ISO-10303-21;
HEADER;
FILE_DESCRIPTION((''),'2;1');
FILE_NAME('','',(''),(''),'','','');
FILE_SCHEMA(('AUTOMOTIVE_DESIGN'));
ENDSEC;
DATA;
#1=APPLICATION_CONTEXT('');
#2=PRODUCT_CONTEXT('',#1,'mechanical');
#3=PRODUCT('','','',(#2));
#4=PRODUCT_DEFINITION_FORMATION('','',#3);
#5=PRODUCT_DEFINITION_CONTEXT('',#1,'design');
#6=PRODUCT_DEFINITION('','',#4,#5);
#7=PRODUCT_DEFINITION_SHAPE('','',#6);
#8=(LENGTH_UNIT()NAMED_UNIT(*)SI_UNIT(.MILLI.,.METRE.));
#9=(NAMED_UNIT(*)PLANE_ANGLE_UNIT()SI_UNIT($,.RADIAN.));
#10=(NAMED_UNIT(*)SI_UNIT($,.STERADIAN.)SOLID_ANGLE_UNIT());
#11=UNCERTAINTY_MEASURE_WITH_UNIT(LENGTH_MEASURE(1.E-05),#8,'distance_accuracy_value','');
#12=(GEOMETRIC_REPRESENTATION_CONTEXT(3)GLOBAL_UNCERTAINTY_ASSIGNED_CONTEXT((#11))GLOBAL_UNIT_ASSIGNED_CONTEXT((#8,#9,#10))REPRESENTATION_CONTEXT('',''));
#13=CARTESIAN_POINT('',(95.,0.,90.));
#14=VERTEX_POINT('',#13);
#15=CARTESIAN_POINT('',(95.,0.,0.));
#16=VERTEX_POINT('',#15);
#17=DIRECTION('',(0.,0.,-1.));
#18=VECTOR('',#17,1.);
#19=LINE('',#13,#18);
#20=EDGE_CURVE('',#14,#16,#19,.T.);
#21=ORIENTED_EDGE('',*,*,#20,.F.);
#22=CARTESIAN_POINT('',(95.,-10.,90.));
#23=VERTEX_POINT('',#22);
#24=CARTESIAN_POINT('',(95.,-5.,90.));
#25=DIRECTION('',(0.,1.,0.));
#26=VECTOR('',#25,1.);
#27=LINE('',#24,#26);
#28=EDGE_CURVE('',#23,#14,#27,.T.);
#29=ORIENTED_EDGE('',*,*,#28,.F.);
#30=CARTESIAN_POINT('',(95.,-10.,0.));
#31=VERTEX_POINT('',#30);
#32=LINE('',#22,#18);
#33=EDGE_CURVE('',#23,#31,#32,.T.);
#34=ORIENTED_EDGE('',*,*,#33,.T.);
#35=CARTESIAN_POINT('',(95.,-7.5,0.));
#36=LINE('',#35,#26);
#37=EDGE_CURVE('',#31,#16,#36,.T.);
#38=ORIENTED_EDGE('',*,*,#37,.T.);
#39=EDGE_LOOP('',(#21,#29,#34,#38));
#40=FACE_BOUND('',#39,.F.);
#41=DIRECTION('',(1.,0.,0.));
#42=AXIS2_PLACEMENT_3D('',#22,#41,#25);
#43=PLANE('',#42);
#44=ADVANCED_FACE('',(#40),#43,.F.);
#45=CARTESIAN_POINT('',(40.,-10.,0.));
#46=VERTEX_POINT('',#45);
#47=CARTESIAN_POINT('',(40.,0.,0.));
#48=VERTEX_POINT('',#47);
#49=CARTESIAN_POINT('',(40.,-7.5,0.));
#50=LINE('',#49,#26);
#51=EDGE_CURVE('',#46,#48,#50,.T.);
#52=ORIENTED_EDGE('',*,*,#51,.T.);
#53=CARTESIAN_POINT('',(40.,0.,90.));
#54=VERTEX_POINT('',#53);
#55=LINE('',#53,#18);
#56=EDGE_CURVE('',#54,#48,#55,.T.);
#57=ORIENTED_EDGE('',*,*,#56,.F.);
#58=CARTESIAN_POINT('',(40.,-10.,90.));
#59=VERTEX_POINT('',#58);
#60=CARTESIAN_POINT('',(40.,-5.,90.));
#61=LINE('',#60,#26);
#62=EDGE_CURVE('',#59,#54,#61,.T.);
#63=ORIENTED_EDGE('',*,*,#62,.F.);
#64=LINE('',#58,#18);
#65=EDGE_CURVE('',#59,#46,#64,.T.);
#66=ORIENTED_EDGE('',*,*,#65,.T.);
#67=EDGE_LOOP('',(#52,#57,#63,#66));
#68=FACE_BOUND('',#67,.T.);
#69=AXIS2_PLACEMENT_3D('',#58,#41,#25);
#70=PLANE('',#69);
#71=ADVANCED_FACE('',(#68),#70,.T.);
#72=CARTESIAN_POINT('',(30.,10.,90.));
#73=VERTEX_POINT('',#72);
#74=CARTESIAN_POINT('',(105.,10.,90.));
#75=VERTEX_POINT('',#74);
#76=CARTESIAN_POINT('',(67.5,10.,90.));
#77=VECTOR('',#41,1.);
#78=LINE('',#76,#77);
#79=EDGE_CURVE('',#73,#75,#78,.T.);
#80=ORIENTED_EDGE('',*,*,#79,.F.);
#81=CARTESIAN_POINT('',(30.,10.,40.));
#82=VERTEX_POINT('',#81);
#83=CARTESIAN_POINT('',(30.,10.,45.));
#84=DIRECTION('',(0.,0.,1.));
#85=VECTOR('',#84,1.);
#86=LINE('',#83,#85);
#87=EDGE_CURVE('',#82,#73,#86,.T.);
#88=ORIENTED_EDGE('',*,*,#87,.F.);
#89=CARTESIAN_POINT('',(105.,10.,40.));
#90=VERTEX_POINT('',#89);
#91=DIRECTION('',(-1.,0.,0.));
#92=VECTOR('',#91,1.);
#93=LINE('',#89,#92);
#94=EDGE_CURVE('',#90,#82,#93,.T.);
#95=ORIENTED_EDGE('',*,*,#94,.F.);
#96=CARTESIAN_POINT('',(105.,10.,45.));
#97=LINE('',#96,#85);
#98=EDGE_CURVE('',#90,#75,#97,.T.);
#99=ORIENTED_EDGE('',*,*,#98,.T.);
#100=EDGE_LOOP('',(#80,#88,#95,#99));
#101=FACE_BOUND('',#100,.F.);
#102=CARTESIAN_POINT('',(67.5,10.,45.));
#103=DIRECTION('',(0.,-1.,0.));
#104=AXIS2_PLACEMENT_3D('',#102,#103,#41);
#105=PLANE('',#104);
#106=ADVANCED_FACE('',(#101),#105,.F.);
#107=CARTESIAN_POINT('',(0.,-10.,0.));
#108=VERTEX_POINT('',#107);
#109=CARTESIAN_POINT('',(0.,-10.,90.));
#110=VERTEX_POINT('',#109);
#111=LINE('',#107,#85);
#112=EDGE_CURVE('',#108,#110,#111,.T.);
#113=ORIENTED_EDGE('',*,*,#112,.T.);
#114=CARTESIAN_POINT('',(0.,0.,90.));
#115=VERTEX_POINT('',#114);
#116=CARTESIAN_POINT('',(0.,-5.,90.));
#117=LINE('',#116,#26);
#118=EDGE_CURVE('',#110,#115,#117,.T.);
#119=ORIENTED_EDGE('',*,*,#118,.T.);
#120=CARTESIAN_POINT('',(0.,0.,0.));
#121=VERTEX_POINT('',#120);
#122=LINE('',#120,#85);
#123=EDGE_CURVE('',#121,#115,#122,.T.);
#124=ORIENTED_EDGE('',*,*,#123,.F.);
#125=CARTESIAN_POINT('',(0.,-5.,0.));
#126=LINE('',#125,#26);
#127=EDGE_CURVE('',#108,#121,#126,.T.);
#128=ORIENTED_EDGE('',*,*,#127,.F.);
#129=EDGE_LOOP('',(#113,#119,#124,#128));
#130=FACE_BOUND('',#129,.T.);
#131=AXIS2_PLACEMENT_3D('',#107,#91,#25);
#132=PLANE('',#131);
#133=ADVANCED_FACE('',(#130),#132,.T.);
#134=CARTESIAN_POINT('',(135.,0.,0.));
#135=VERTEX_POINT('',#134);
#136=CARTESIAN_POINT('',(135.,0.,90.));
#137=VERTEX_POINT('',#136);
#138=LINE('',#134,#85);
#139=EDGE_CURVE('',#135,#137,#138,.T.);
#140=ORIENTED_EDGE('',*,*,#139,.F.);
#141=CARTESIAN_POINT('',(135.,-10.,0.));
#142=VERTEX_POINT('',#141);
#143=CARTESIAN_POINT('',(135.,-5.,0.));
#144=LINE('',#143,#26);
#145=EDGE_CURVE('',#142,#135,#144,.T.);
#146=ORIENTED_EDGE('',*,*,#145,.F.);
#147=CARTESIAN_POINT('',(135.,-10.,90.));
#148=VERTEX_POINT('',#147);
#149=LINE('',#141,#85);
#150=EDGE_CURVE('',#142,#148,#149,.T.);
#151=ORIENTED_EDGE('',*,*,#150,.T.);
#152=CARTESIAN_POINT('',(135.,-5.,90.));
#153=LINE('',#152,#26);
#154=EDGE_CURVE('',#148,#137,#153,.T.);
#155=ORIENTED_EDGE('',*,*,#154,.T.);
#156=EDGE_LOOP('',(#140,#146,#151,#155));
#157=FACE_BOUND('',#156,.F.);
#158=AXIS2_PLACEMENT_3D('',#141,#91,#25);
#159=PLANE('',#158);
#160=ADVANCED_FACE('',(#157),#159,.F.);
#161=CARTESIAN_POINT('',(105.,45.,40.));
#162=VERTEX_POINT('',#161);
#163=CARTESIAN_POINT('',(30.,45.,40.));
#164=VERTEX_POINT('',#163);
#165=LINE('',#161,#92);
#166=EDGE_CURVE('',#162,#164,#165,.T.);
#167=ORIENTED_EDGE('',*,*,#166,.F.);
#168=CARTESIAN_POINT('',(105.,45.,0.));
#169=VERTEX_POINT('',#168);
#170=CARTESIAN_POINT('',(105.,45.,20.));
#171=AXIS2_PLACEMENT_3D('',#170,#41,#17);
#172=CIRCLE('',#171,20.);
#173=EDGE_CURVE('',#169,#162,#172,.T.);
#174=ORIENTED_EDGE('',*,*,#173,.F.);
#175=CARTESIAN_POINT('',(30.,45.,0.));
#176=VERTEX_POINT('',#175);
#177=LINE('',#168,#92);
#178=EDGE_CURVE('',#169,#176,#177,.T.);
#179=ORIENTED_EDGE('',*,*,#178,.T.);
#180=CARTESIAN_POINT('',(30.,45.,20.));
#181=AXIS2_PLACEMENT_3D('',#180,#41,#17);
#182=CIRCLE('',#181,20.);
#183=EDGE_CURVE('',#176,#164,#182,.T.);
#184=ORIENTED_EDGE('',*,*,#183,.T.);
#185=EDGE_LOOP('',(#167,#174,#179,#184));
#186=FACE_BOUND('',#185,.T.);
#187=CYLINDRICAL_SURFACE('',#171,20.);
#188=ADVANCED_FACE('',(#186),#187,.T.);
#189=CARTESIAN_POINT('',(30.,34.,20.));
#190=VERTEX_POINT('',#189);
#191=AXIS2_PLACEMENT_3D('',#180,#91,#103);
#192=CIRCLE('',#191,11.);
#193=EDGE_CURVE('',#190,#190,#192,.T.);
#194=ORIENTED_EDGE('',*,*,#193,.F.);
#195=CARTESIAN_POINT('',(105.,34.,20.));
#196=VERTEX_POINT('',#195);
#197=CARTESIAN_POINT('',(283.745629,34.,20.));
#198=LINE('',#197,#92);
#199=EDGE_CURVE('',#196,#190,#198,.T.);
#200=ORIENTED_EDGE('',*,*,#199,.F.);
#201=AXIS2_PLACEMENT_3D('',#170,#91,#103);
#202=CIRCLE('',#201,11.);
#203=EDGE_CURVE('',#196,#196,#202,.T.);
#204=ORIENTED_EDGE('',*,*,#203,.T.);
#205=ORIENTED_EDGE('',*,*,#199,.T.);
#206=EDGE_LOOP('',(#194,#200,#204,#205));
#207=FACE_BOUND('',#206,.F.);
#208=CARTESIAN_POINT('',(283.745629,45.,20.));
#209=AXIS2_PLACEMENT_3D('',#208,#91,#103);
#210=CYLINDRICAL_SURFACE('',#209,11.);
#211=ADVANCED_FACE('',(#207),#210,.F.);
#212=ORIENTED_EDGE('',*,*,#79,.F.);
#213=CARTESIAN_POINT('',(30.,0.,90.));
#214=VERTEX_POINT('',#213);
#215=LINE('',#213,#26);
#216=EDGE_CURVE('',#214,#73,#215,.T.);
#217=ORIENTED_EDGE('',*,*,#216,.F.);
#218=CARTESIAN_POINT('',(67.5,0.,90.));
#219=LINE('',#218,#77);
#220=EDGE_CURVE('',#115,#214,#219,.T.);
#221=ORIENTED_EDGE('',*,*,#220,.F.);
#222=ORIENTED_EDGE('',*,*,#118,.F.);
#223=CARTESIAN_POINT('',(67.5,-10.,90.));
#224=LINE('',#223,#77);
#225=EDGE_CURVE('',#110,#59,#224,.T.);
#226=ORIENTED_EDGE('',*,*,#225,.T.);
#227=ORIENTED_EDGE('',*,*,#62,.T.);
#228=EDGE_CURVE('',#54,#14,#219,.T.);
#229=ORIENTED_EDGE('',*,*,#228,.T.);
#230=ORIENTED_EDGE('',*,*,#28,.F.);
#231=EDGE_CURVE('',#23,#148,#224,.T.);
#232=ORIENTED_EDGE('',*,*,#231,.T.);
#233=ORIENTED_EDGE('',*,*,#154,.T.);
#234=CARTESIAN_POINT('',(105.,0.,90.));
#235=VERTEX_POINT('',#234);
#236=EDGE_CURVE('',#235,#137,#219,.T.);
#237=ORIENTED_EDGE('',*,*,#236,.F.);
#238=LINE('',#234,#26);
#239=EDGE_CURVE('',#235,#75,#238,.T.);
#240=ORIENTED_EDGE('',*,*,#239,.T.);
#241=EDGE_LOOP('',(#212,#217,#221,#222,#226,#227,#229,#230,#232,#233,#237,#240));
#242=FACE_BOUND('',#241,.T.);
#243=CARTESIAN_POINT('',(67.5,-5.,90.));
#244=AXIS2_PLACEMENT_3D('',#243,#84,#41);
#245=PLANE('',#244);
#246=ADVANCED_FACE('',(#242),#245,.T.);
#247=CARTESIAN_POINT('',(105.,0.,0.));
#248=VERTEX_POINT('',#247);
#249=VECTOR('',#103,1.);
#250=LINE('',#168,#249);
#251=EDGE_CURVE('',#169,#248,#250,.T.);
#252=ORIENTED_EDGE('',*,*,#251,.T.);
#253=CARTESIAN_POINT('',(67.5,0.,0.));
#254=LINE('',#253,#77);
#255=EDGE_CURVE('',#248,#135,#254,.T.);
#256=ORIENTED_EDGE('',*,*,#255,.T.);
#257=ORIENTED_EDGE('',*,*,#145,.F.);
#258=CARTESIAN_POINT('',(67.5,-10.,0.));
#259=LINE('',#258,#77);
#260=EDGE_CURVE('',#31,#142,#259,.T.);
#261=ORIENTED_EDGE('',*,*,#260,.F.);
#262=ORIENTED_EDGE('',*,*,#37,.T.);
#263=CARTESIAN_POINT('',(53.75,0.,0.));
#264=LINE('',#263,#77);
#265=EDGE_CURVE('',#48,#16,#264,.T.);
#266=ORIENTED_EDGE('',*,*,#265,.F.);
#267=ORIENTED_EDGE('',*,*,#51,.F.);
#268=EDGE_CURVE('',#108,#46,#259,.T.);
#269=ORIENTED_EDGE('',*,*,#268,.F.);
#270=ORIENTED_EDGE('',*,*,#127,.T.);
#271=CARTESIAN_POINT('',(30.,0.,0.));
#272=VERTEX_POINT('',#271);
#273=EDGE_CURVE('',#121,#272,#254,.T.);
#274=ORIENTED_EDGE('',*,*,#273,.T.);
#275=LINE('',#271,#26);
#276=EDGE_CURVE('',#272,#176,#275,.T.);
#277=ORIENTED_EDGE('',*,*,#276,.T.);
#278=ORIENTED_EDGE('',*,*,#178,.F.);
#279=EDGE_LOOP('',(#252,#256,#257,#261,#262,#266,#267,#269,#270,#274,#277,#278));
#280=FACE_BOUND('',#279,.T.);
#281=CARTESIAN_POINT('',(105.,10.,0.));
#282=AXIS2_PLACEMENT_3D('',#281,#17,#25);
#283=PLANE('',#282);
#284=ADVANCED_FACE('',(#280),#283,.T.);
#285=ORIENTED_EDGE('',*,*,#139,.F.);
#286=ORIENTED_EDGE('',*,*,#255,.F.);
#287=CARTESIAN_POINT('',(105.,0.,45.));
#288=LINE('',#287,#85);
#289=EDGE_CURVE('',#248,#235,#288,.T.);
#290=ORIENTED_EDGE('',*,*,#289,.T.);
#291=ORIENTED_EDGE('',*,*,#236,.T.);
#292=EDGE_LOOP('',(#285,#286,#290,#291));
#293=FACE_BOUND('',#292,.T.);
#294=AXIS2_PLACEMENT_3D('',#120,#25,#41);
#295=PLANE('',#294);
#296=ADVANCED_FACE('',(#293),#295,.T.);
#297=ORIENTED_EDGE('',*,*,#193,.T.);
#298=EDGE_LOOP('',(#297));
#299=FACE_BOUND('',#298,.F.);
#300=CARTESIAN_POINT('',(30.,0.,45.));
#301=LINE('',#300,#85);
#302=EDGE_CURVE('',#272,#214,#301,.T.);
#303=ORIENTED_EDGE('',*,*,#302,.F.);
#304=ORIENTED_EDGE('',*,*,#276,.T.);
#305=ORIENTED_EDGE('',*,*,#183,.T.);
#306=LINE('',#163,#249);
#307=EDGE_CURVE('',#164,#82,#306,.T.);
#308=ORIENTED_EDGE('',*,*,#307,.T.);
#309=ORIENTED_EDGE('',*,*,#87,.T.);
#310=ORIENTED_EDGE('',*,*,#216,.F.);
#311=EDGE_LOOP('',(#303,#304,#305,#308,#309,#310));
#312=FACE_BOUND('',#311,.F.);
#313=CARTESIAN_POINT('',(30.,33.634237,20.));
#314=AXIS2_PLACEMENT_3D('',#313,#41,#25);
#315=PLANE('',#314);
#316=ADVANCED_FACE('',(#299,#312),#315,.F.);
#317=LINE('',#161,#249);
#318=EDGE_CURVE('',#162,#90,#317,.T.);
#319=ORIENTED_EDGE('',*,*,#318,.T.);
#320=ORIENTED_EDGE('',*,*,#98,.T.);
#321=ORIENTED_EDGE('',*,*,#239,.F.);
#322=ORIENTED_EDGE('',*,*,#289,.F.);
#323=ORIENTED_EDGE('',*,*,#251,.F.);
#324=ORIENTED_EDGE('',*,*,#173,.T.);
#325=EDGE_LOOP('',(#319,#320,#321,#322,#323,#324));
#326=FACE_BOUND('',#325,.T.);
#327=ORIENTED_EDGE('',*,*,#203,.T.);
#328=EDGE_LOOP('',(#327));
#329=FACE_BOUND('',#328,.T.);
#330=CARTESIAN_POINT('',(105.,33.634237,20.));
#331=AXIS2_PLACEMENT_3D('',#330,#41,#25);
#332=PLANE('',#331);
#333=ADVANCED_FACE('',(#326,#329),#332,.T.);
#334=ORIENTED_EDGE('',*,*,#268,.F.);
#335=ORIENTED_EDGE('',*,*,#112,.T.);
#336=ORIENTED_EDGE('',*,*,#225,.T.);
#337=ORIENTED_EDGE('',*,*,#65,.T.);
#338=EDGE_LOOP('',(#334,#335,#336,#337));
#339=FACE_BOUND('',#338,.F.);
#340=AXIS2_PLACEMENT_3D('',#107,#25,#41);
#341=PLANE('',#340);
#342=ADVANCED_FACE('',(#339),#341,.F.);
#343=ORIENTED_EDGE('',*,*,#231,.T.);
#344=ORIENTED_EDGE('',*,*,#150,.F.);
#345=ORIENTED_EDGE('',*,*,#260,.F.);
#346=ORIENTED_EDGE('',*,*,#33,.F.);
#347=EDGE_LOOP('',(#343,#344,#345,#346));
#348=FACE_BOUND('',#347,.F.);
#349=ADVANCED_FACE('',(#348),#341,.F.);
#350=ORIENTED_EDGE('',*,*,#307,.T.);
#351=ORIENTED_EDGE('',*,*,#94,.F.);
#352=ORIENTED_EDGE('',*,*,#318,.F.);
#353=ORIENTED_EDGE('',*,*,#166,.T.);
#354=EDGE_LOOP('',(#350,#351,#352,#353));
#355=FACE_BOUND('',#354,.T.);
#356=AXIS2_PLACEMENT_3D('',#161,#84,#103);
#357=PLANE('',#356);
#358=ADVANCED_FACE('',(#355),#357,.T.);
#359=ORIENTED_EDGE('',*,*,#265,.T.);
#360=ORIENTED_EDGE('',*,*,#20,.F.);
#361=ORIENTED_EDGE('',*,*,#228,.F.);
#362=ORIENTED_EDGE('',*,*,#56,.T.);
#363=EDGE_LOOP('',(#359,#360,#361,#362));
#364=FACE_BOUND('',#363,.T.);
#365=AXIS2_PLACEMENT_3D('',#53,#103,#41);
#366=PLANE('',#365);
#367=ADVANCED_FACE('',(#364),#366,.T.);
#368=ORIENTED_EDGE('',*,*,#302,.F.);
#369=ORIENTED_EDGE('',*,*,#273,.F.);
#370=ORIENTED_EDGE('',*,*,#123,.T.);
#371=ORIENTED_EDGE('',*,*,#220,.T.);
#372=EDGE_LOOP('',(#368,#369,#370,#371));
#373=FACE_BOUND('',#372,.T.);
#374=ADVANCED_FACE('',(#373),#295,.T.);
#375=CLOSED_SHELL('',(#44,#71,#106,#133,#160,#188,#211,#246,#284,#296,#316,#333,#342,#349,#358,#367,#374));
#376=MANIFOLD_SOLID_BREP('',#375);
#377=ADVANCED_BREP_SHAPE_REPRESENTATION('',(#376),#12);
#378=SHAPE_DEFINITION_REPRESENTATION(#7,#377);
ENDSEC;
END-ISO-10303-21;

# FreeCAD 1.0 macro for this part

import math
import FreeCAD as App
import Part
import Sketcher

V = App.Vector

doc = App.newDocument("Part")
body = doc.addObject("PartDesign::Body", "Body")

# Sketch on XY plane
sketch1 = doc.addObject("Sketcher::SketchObject", "Sketch")
body.addObject(sketch1)
sketch1.AttachmentSupport = (doc.XY_Plane, [""])
sketch1.MapMode = "FlatFace"
sketch1.addGeometry(Part.LineSegment(V(0, 0, 0), V(0, -10, 0)), False)
sketch1.addGeometry(Part.LineSegment(V(0, -10, 0), V(135, -10, 0)), False)
sketch1.addGeometry(Part.LineSegment(V(135, -10, 0), V(135, 0, 0)), False)
sketch1.addGeometry(Part.LineSegment(V(135, 0, 0), V(0, 0, 0)), False)
sketch1.addConstraint(Sketcher.Constraint("Coincident", 0, 2, 1, 1))
sketch1.addConstraint(Sketcher.Constraint("Coincident", 1, 2, 2, 1))
sketch1.addConstraint(Sketcher.Constraint("Coincident", 2, 2, 3, 1))
sketch1.addConstraint(Sketcher.Constraint("Coincident", 3, 2, 0, 1))
sketch1.addConstraint(Sketcher.Constraint("Vertical", 0))
sketch1.addConstraint(Sketcher.Constraint("Horizontal", 1))
sketch1.addConstraint(Sketcher.Constraint("Vertical", 2))
sketch1.addConstraint(Sketcher.Constraint("Horizontal", 3))
sketch1.addConstraint(Sketcher.Constraint("Coincident", 3, 2, -1, 1))
sketch1.addConstraint(Sketcher.Constraint("DistanceX", 1, 1, 1, 2, 135.0))
sketch1.addConstraint(Sketcher.Constraint("DistanceY", 0, 2, 0, 1, 10.0))
pad1 = doc.addObject("PartDesign::Pad", "Pad")
body.addObject(pad1)
pad1.Profile = sketch1
pad1.Length = 90

# Sketch on XZ plane
sketch2 = doc.addObject("Sketcher::SketchObject", "Sketch001")
body.addObject(sketch2)
sketch2.AttachmentSupport = (doc.XZ_Plane, [""])
sketch2.MapMode = "FlatFace"
sketch2.addGeometry(Part.LineSegment(V(30, 90, 0), V(30, 0, 0)), False)
sketch2.addGeometry(Part.LineSegment(V(30, 0, 0), V(105, 0, 0)), False)
sketch2.addGeometry(Part.LineSegment(V(105, 0, 0), V(105, 90, 0)), False)
sketch2.addGeometry(Part.LineSegment(V(105, 90, 0), V(30, 90, 0)), False)
sketch2.addConstraint(Sketcher.Constraint("Coincident", 0, 2, 1, 1))
sketch2.addConstraint(Sketcher.Constraint("Coincident", 1, 2, 2, 1))
sketch2.addConstraint(Sketcher.Constraint("Coincident", 2, 2, 3, 1))
sketch2.addConstraint(Sketcher.Constraint("Coincident", 3, 2, 0, 1))
sketch2.addConstraint(Sketcher.Constraint("Vertical", 0))
sketch2.addConstraint(Sketcher.Constraint("Horizontal", 1))
sketch2.addConstraint(Sketcher.Constraint("Vertical", 2))
sketch2.addConstraint(Sketcher.Constraint("Horizontal", 3))
sketch2.addConstraint(Sketcher.Constraint("PointOnObject", 0, 2, -1))
sketch2.addConstraint(Sketcher.Constraint("DistanceX", 1, 1, 1, 2, 75.0))
sketch2.addConstraint(Sketcher.Constraint("DistanceY", 0, 2, 0, 1, 90.0))
sketch2.addConstraint(Sketcher.Constraint("DistanceX", -1, 1, 0, 2, 30.0))
pad2 = doc.addObject("PartDesign::Pad", "Pad001")
body.addObject(pad2)
pad2.Profile = sketch2
pad2.Length = 10
pad2.Reversed = True

# Sketch on XY plane
sketch3 = doc.addObject("Sketcher::SketchObject", "Sketch002")
body.addObject(sketch3)
sketch3.AttachmentSupport = (doc.XY_Plane, [""])
sketch3.MapMode = "FlatFace"
sketch3.AttachmentOffset = App.Placement(V(0, 0, 90), App.Rotation())
sketch3.addGeometry(Part.LineSegment(V(40, 0, 0), V(40, -10, 0)), False)
sketch3.addGeometry(Part.LineSegment(V(40, -10, 0), V(95, -10, 0)), False)
sketch3.addGeometry(Part.LineSegment(V(95, -10, 0), V(95, 0, 0)), False)
sketch3.addGeometry(Part.LineSegment(V(95, 0, 0), V(40, 0, 0)), False)
sketch3.addConstraint(Sketcher.Constraint("Coincident", 0, 2, 1, 1))
sketch3.addConstraint(Sketcher.Constraint("Coincident", 1, 2, 2, 1))
sketch3.addConstraint(Sketcher.Constraint("Coincident", 2, 2, 3, 1))
sketch3.addConstraint(Sketcher.Constraint("Coincident", 3, 2, 0, 1))
sketch3.addConstraint(Sketcher.Constraint("Vertical", 0))
sketch3.addConstraint(Sketcher.Constraint("Horizontal", 1))
sketch3.addConstraint(Sketcher.Constraint("Vertical", 2))
sketch3.addConstraint(Sketcher.Constraint("Horizontal", 3))
sketch3.addConstraint(Sketcher.Constraint("PointOnObject", 2, 2, -1))
sketch3.addConstraint(Sketcher.Constraint("DistanceX", 1, 1, 1, 2, 55.0))
sketch3.addConstraint(Sketcher.Constraint("DistanceY", 0, 2, 0, 1, 10.0))
sketch3.addConstraint(Sketcher.Constraint("DistanceX", -1, 1, 0, 2, 40.0))
pocket1 = doc.addObject("PartDesign::Pocket", "Pocket")
body.addObject(pocket1)
pocket1.Profile = sketch3
pocket1.Type = "ThroughAll"

# Sketch on YZ plane
sketch4 = doc.addObject("Sketcher::SketchObject", "Sketch003")
body.addObject(sketch4)
sketch4.AttachmentSupport = (doc.YZ_Plane, [""])
sketch4.MapMode = "FlatFace"
sketch4.AttachmentOffset = App.Placement(V(0, 0, 105), App.Rotation())
sketch4.addGeometry(Part.LineSegment(V(10, 40, 0), V(10, 0, 0)), False)
sketch4.addGeometry(Part.LineSegment(V(10, 0, 0), V(45, 0, 0)), False)
sketch4.addGeometry(Part.ArcOfCircle(Part.Circle(V(45, 20, 0), V(0, 0, 1), 20), math.radians(-90), math.radians(90)), False)
sketch4.addGeometry(Part.LineSegment(V(45, 40, 0), V(10, 40, 0)), False)
sketch4.addConstraint(Sketcher.Constraint("Coincident", 0, 2, 1, 1))
sketch4.addConstraint(Sketcher.Constraint("Tangent", 1, 2, 2, 1))
sketch4.addConstraint(Sketcher.Constraint("Tangent", 2, 2, 3, 1))
sketch4.addConstraint(Sketcher.Constraint("Coincident", 3, 2, 0, 1))
sketch4.addConstraint(Sketcher.Constraint("Vertical", 0))
sketch4.addConstraint(Sketcher.Constraint("Horizontal", 1))
sketch4.addConstraint(Sketcher.Constraint("Horizontal", 3))
sketch4.addConstraint(Sketcher.Constraint("PointOnObject", 0, 2, -1))
sketch4.addConstraint(Sketcher.Constraint("Radius", 2, 20.0))
sketch4.addConstraint(Sketcher.Constraint("DistanceX", 1, 1, 1, 2, 35.0))
sketch4.addConstraint(Sketcher.Constraint("DistanceX", -1, 1, 2, 3, 45.0))
pad3 = doc.addObject("PartDesign::Pad", "Pad002")
body.addObject(pad3)
pad3.Profile = sketch4
pad3.Length = 75
pad3.Reversed = True

# Sketch on YZ plane
sketch5 = doc.addObject("Sketcher::SketchObject", "Sketch004")
body.addObject(sketch5)
sketch5.AttachmentSupport = (doc.YZ_Plane, [""])
sketch5.MapMode = "FlatFace"
sketch5.AttachmentOffset = App.Placement(V(0, 0, 105), App.Rotation())
sketch5.addGeometry(Part.Circle(V(45, 20, 0), V(0, 0, 1), 11), False)
sketch5.addConstraint(Sketcher.Constraint("Diameter", 0, 22.0))
sketch5.addConstraint(Sketcher.Constraint("DistanceX", -1, 1, 0, 3, 45.0))
sketch5.addConstraint(Sketcher.Constraint("DistanceY", -1, 1, 0, 3, 20.0))
doc.recompute()
hole = doc.addObject("PartDesign::Hole", "Hole")
body.addObject(hole)
hole.Profile = sketch5
hole.ThreadType = "None"
hole.Diameter = 22
hole.DepthType = "ThroughAll"

doc.recompute()
